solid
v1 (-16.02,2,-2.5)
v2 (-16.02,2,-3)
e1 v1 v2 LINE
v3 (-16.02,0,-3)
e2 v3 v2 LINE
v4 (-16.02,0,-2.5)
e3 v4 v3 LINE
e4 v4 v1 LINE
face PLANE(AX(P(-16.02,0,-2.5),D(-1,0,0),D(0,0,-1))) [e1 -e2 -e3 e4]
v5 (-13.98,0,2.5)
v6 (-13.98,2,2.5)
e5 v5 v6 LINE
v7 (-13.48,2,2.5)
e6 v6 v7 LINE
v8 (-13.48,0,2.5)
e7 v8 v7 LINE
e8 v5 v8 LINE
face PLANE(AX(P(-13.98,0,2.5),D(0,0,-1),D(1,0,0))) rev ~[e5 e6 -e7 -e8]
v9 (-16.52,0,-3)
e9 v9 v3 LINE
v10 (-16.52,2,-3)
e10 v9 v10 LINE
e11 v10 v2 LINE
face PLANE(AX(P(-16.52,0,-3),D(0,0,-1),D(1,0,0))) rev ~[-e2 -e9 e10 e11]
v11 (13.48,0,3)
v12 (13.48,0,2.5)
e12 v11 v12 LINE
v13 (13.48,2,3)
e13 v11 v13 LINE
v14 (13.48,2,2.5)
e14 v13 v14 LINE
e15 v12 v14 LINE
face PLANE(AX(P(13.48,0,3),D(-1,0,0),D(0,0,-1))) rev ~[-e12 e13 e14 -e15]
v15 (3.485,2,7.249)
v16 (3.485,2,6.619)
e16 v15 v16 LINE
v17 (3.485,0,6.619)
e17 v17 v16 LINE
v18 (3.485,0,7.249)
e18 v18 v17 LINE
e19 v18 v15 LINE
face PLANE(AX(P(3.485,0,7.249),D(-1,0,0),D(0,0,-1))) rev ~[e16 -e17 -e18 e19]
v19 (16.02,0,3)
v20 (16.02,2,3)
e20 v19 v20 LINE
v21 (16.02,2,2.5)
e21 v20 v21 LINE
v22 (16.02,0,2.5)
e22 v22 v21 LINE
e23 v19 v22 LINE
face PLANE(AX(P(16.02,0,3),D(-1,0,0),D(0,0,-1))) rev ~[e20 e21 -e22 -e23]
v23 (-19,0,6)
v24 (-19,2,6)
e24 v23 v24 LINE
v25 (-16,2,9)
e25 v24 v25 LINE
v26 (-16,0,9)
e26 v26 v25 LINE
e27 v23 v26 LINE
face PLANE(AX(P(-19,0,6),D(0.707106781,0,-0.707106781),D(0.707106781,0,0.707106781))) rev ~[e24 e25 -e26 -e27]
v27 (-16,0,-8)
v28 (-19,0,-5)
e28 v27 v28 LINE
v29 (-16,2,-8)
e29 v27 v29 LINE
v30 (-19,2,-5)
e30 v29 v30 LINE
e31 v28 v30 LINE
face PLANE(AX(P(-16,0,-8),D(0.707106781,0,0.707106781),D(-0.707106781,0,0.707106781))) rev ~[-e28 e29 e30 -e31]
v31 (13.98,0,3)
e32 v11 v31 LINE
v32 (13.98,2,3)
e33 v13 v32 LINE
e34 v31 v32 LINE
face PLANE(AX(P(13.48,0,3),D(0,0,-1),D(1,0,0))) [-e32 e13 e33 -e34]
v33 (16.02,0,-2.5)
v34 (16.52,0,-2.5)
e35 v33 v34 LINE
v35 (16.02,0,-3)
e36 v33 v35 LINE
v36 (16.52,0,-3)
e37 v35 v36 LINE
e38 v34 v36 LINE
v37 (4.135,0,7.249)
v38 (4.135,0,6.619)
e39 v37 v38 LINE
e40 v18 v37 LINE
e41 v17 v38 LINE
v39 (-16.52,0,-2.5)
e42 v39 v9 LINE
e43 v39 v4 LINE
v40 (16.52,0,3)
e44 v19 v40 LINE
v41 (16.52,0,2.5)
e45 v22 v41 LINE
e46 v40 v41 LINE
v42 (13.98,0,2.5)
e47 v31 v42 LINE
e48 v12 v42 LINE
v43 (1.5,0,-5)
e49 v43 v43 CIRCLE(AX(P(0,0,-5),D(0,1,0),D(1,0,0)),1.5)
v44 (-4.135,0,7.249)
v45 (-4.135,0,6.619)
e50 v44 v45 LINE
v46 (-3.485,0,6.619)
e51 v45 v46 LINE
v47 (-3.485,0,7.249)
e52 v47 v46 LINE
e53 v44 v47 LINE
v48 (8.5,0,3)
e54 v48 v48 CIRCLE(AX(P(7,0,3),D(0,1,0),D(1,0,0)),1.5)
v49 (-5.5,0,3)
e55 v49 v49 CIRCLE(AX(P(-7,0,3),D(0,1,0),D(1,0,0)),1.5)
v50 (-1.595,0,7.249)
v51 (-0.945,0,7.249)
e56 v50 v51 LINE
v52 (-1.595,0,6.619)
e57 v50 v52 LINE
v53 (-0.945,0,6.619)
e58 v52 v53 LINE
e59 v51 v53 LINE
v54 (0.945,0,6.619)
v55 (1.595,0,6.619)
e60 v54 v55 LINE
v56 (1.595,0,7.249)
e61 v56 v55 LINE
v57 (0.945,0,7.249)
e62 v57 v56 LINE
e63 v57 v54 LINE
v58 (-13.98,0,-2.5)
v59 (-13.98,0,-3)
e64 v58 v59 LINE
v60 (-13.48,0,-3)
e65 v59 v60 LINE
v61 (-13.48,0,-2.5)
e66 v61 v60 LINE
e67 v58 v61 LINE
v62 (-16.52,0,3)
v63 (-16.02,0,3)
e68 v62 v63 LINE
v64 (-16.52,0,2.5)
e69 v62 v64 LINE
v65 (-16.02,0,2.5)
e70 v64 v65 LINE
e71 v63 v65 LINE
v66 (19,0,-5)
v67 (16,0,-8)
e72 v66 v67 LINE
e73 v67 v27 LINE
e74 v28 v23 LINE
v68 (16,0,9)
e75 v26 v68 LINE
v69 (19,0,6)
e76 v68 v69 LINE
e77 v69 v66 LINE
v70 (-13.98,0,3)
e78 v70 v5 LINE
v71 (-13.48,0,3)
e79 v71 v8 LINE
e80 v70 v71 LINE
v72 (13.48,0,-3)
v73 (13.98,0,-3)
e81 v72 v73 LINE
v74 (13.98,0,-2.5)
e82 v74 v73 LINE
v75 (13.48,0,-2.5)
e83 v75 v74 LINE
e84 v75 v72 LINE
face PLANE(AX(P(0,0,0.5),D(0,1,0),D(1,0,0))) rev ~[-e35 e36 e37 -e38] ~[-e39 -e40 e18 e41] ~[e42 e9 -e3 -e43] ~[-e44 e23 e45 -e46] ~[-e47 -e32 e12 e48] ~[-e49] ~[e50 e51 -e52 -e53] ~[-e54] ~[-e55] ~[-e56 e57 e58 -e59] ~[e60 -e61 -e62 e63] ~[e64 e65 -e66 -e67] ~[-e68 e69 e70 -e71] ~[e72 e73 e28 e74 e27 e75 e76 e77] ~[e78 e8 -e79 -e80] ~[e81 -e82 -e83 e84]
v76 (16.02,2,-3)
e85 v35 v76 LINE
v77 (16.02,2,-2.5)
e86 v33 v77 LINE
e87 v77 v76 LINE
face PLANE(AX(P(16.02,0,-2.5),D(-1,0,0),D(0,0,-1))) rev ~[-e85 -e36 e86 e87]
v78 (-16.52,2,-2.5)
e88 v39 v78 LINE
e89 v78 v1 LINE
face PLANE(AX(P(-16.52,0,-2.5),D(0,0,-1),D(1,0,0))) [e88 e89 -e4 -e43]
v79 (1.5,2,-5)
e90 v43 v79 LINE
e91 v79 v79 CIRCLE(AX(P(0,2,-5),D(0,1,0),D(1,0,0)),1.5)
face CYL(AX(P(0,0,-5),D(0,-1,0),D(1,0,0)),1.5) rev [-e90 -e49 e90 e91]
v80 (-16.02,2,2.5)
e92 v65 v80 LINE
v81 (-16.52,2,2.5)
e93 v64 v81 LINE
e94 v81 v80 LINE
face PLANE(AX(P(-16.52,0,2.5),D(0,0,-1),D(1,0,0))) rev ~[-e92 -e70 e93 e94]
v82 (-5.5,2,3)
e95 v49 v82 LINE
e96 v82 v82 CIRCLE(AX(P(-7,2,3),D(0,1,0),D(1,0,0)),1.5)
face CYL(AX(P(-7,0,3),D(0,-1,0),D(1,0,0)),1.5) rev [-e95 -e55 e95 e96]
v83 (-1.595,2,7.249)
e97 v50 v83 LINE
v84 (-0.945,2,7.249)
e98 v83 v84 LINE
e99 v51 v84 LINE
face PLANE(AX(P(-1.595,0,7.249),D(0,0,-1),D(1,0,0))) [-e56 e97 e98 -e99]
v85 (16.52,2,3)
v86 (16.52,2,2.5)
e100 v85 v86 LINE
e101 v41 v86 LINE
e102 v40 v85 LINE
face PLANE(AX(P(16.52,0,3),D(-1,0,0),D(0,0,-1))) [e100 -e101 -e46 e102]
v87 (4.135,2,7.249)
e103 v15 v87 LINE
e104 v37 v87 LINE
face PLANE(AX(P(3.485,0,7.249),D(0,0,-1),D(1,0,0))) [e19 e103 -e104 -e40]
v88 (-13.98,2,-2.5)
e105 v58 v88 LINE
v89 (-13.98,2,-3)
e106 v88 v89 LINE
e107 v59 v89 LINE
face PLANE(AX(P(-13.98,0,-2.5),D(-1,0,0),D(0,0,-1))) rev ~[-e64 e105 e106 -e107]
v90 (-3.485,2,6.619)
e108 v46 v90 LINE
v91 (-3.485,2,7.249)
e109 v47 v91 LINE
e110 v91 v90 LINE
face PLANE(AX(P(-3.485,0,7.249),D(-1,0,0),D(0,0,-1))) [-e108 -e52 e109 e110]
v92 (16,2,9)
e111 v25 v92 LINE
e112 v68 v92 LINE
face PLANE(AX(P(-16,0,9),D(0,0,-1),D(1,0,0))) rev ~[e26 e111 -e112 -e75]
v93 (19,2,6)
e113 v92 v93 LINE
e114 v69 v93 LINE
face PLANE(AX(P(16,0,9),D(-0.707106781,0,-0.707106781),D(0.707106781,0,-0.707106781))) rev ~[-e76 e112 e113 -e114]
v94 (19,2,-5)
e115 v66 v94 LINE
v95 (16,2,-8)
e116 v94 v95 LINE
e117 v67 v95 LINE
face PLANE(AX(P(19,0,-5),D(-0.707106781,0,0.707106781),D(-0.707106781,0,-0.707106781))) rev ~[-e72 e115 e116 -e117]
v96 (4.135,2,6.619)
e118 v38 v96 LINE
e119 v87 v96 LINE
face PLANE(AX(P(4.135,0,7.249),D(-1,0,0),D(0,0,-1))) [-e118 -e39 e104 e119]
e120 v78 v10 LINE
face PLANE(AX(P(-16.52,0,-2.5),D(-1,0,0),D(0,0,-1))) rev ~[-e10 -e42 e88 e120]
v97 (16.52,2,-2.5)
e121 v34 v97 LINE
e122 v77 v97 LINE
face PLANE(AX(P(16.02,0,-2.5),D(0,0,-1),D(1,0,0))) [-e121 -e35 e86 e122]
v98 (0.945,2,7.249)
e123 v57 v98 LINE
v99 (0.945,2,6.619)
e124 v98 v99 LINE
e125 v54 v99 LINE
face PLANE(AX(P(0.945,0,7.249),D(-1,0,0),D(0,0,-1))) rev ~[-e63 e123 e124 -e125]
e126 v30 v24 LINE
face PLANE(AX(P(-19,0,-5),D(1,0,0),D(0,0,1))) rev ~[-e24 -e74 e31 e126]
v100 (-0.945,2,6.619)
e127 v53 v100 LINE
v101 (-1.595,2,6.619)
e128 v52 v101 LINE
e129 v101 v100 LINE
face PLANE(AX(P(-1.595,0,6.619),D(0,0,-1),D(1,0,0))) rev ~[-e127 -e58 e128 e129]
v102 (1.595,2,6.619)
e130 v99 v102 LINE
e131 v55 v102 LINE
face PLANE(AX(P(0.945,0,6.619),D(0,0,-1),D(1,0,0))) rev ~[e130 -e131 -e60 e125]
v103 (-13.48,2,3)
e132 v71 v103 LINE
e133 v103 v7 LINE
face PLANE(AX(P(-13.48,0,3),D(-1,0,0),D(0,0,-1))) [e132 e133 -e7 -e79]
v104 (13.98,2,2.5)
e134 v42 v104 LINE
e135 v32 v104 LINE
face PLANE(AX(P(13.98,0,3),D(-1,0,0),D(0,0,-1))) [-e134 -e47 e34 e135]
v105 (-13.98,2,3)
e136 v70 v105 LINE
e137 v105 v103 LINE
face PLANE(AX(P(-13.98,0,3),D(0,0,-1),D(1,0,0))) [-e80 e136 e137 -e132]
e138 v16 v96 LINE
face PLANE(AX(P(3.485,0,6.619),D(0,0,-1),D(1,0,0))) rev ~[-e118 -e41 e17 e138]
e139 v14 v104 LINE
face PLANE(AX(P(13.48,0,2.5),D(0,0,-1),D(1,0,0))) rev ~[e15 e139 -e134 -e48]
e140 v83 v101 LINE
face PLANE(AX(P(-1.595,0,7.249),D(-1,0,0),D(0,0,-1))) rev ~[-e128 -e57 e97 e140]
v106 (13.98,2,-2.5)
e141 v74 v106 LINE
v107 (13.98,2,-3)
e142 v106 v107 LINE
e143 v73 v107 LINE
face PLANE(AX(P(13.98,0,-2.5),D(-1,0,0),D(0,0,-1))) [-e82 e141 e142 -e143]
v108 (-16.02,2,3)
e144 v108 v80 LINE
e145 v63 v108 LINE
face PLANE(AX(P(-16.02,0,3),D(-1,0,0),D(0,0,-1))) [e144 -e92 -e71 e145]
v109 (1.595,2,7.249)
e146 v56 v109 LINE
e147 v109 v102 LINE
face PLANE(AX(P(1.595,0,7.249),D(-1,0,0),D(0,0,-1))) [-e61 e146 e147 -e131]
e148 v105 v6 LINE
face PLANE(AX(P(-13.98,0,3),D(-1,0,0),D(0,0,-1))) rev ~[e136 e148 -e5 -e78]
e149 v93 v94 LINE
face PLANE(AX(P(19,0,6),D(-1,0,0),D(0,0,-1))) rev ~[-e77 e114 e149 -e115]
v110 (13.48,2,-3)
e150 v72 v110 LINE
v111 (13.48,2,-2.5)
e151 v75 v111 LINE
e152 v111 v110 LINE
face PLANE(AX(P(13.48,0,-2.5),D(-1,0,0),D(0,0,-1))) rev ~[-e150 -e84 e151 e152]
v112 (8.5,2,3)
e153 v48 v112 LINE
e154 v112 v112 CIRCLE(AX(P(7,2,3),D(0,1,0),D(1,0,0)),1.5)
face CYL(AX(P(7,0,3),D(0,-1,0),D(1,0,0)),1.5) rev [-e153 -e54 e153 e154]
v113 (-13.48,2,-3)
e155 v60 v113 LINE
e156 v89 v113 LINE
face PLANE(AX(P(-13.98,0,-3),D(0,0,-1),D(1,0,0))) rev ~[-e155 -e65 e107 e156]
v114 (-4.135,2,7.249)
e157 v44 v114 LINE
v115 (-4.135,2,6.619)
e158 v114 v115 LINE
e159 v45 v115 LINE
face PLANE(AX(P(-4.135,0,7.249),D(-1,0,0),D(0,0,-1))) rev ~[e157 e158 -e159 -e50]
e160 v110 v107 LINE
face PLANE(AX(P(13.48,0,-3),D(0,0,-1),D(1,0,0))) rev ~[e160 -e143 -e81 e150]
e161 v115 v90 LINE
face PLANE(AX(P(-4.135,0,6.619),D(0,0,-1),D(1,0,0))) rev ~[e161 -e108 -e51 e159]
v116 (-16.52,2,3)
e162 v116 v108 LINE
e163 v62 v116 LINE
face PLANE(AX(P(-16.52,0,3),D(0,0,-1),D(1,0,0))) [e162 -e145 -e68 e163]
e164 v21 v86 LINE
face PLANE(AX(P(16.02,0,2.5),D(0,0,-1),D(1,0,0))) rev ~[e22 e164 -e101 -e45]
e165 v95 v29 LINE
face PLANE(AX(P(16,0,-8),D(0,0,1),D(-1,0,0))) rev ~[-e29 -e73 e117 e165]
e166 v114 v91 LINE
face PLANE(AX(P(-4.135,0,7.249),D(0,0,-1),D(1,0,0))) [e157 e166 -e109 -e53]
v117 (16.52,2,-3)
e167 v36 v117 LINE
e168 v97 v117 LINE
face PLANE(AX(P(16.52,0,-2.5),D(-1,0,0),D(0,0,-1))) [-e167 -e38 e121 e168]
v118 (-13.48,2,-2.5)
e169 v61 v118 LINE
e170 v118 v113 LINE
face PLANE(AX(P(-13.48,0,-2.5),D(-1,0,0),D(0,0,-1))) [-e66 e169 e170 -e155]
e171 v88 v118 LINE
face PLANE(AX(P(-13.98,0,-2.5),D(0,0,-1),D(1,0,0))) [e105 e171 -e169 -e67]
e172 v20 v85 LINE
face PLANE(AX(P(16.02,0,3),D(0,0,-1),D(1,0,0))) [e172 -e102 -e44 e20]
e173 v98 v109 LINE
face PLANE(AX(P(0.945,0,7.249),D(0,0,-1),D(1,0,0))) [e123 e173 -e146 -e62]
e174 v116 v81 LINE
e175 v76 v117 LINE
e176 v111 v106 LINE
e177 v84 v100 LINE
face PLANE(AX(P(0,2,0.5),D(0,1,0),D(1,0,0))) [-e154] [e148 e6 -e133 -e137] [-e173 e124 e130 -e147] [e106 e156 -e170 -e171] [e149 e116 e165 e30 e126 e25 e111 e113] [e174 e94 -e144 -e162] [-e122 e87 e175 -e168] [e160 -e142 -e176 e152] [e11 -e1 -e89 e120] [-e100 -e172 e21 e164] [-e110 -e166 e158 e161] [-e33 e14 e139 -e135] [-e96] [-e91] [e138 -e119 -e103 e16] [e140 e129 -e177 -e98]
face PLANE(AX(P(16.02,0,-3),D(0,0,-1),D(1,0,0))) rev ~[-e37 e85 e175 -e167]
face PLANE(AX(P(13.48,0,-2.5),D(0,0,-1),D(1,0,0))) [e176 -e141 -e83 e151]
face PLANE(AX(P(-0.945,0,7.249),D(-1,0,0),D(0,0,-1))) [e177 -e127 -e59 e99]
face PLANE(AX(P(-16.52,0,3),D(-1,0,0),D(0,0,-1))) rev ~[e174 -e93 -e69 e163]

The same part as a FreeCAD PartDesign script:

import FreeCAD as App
import Part
import Sketcher

V = App.Vector


def add_polygon(sketch, points):
    """Adds a closed chain of lines whose ends are joined by coincident constraints."""
    first, n = sketch.GeometryCount, len(points)
    for a, b in zip(points, points[1:] + points[:1]):
        sketch.addGeometry(Part.LineSegment(App.Vector(*a, 0), App.Vector(*b, 0)), False)
    for i in range(n):
        sketch.addConstraint(Sketcher.Constraint("Coincident", first + i, 2, first + (i + 1) % n, 1))

doc = App.newDocument("Part")
body = doc.addObject("PartDesign::Body", "Body")

sketch1 = body.newObject("Sketcher::SketchObject", "Sketch")
sketch1.AttachmentSupport = (doc.getObject("XZ_Plane"), [""])
sketch1.MapMode = "FlatFace"
add_polygon(sketch1, [(-19, -5), (-19, 6), (-16, 9), (16, 9), (19, 6), (19, -5), (16, -8), (-16, -8)])
add_polygon(sketch1, [(-3.5, 7.2), (-4.1, 7.2), (-4.1, 6.6), (-3.5, 6.6)])
add_polygon(sketch1, [(-0.9, 7.2), (-1.6, 7.2), (-1.6, 6.6), (-0.9, 6.6)])
add_polygon(sketch1, [(-16, 3), (-16.5, 3), (-16.5, 2.5), (-16, 2.5)])
add_polygon(sketch1, [(-13.5, 3), (-14, 3), (-14, 2.5), (-13.5, 2.5)])
sketch1.addGeometry(Part.Circle(V(-7, 3, 0), V(0, 0, 1), 1.5), False)
add_polygon(sketch1, [(1.6, 7.2), (0.9, 7.2), (0.9, 6.6), (1.6, 6.6)])
add_polygon(sketch1, [(4.1, 7.2), (3.5, 7.2), (3.5, 6.6), (4.1, 6.6)])
sketch1.addGeometry(Part.Circle(V(7, 3, 0), V(0, 0, 1), 1.5), False)
add_polygon(sketch1, [(14, 3), (13.5, 3), (13.5, 2.5), (14, 2.5)])
add_polygon(sketch1, [(16.5, 3), (16, 3), (16, 2.5), (16.5, 2.5)])
add_polygon(sketch1, [(-16, -2.5), (-16.5, -2.5), (-16.5, -3), (-16, -3)])
add_polygon(sketch1, [(-13.5, -2.5), (-14, -2.5), (-14, -3), (-13.5, -3)])
add_polygon(sketch1, [(14, -2.5), (13.5, -2.5), (13.5, -3), (14, -3)])
add_polygon(sketch1, [(16.5, -2.5), (16, -2.5), (16, -3), (16.5, -3)])
sketch1.addGeometry(Part.Circle(V(0, -5, 0), V(0, 0, 1), 1.5), False)
sketch1.addConstraint([
    Sketcher.Constraint("Vertical", 0),
    Sketcher.Constraint("Horizontal", 2),
    Sketcher.Constraint("Vertical", 4),
    Sketcher.Constraint("Horizontal", 6),
    Sketcher.Constraint("Horizontal", 8),
    Sketcher.Constraint("Vertical", 9),
    Sketcher.Constraint("Horizontal", 10),
    Sketcher.Constraint("Vertical", 11),
    Sketcher.Constraint("Horizontal", 12),
    Sketcher.Constraint("Vertical", 13),
    Sketcher.Constraint("Horizontal", 14),
    Sketcher.Constraint("Vertical", 15),
    Sketcher.Constraint("Horizontal", 16),
    Sketcher.Constraint("Vertical", 17),
    Sketcher.Constraint("Horizontal", 18),
    Sketcher.Constraint("Vertical", 19),
    Sketcher.Constraint("Horizontal", 20),
    Sketcher.Constraint("Vertical", 21),
    Sketcher.Constraint("Horizontal", 22),
    Sketcher.Constraint("Vertical", 23),
    Sketcher.Constraint("Horizontal", 25),
    Sketcher.Constraint("Vertical", 26),
    Sketcher.Constraint("Horizontal", 27),
    Sketcher.Constraint("Vertical", 28),
    Sketcher.Constraint("Horizontal", 29),
    Sketcher.Constraint("Vertical", 30),
    Sketcher.Constraint("Horizontal", 31),
    Sketcher.Constraint("Vertical", 32),
    Sketcher.Constraint("Horizontal", 34),
    Sketcher.Constraint("Vertical", 35),
    Sketcher.Constraint("Horizontal", 36),
    Sketcher.Constraint("Vertical", 37),
    Sketcher.Constraint("Horizontal", 38),
    Sketcher.Constraint("Vertical", 39),
    Sketcher.Constraint("Horizontal", 40),
    Sketcher.Constraint("Vertical", 41),
    Sketcher.Constraint("Horizontal", 42),
    Sketcher.Constraint("Vertical", 43),
    Sketcher.Constraint("Horizontal", 44),
    Sketcher.Constraint("Vertical", 45),
    Sketcher.Constraint("Horizontal", 46),
    Sketcher.Constraint("Vertical", 47),
    Sketcher.Constraint("Horizontal", 48),
    Sketcher.Constraint("Vertical", 49),
    Sketcher.Constraint("Horizontal", 50),
    Sketcher.Constraint("Vertical", 51),
    Sketcher.Constraint("Horizontal", 52),
    Sketcher.Constraint("Vertical", 53),
    Sketcher.Constraint("Horizontal", 54),
    Sketcher.Constraint("Vertical", 55),
    Sketcher.Constraint("Horizontal", 56),
    Sketcher.Constraint("Vertical", 57),
    Sketcher.Constraint("Equal", 24, 33),
    Sketcher.Constraint("Equal", 33, 58),
    Sketcher.Constraint("Symmetric", 40, 2, 42, 2, -1, 1),
    Sketcher.Constraint("Symmetric", 38, 2, 44, 2, -1, 1),
    Sketcher.Constraint("Symmetric", 36, 2, 46, 2, -1, 1),
    Sketcher.Constraint("Symmetric", 34, 2, 48, 2, -1, 1),
    Sketcher.Constraint("Symmetric", 22, 2, 50, 2, -1, 1),
    Sketcher.Constraint("Symmetric", 20, 2, 52, 2, -1, 1),
    Sketcher.Constraint("Symmetric", 18, 2, 54, 2, -1, 1),
    Sketcher.Constraint("Symmetric", 16, 2, 56, 2, -1, 1),
    Sketcher.Constraint("Symmetric", 24, 3, 33, 3, -2),
    Sketcher.Constraint("Symmetric", 0, 2, 3, 2, -2),
    Sketcher.Constraint("Symmetric", 15, 2, 25, 2, -2),
    Sketcher.Constraint("Symmetric", 13, 2, 27, 2, -2),
    Sketcher.Constraint("Symmetric", 11, 2, 29, 2, -2),
    Sketcher.Constraint("Symmetric", 9, 2, 31, 2, -2),
    Sketcher.Constraint("Symmetric", 23, 2, 34, 2, -2),
    Sketcher.Constraint("Symmetric", 21, 2, 36, 2, -2),
    Sketcher.Constraint("Symmetric", 19, 2, 38, 2, -2),
    Sketcher.Constraint("Symmetric", 17, 2, 40, 2, -2),
    Sketcher.Constraint("PointOnObject", 58, 3, -2),
    Sketcher.Constraint("Perpendicular", 1, 3),
    Sketcher.Constraint("Perpendicular", 3, 5),
    Sketcher.Constraint("Perpendicular", 5, 7),
    Sketcher.Constraint("Horizontal", 58, 3, 4, 2),
    Sketcher.Constraint("Horizontal", 4, 2, 7, 2),
    Sketcher.Constraint("Horizontal", 11, 2, 12, 2),
    Sketcher.Constraint("Horizontal", 10, 2, 13, 2),
    Sketcher.Constraint("Horizontal", 33, 3, 16, 2),
    Sketcher.Constraint("Horizontal", 19, 2, 20, 2),
    Sketcher.Constraint("Horizontal", 18, 2, 21, 2),
    Sketcher.Constraint("Vertical", 2, 2, 5, 2),
    Sketcher.Constraint("Vertical", 1, 2, 6, 2),
    Sketcher.Constraint("Equal", 10, 12),
    Sketcher.Constraint("Equal", 18, 20),
    Sketcher.Constraint("Equal", 56, 17),
    Sketcher.Constraint("Diameter", 24, 3.0),
    Sketcher.Constraint("DistanceX", 2, 1, 2, 2, 32.0),
    Sketcher.Constraint("DistanceY", 0, 1, 0, 2, 11.0),
    Sketcher.Constraint("DistanceX", 16, 2, 16, 1, 0.5),
    Sketcher.Constraint("DistanceX", 24, 3, -1, 1, 7.0),
    Sketcher.Constraint("DistanceY", -1, 1, 24, 3, 3.0),
    Sketcher.Constraint("DistanceY", 58, 3, -1, 1, 5.0),
    Sketcher.Constraint("DistanceX", 0, 2, -1, 1, 19.0),
    Sketcher.Constraint("DistanceX", 8, 2, 8, 1, 0.65),
    Sketcher.Constraint("DistanceY", 9, 2, 9, 1, 0.63),
    Sketcher.Constraint("DistanceX", 16, 2, -1, 1, 16.52),
    Sketcher.Constraint("DistanceX", 20, 2, -1, 1, 13.98),
    Sketcher.Constraint("DistanceX", 11, 2, 12, 2, 1.89),
    Sketcher.Constraint("DistanceX", 15, 2, 25, 2, 1.89),
    Sketcher.Constraint("DistanceY", -1, 1, 8, 2, 7.249),
])
pad1 = body.newObject("PartDesign::Pad", "Pad")
pad1.Profile = sketch1
pad1.Length = 2
pad1.Reversed = True

doc.recompute()
